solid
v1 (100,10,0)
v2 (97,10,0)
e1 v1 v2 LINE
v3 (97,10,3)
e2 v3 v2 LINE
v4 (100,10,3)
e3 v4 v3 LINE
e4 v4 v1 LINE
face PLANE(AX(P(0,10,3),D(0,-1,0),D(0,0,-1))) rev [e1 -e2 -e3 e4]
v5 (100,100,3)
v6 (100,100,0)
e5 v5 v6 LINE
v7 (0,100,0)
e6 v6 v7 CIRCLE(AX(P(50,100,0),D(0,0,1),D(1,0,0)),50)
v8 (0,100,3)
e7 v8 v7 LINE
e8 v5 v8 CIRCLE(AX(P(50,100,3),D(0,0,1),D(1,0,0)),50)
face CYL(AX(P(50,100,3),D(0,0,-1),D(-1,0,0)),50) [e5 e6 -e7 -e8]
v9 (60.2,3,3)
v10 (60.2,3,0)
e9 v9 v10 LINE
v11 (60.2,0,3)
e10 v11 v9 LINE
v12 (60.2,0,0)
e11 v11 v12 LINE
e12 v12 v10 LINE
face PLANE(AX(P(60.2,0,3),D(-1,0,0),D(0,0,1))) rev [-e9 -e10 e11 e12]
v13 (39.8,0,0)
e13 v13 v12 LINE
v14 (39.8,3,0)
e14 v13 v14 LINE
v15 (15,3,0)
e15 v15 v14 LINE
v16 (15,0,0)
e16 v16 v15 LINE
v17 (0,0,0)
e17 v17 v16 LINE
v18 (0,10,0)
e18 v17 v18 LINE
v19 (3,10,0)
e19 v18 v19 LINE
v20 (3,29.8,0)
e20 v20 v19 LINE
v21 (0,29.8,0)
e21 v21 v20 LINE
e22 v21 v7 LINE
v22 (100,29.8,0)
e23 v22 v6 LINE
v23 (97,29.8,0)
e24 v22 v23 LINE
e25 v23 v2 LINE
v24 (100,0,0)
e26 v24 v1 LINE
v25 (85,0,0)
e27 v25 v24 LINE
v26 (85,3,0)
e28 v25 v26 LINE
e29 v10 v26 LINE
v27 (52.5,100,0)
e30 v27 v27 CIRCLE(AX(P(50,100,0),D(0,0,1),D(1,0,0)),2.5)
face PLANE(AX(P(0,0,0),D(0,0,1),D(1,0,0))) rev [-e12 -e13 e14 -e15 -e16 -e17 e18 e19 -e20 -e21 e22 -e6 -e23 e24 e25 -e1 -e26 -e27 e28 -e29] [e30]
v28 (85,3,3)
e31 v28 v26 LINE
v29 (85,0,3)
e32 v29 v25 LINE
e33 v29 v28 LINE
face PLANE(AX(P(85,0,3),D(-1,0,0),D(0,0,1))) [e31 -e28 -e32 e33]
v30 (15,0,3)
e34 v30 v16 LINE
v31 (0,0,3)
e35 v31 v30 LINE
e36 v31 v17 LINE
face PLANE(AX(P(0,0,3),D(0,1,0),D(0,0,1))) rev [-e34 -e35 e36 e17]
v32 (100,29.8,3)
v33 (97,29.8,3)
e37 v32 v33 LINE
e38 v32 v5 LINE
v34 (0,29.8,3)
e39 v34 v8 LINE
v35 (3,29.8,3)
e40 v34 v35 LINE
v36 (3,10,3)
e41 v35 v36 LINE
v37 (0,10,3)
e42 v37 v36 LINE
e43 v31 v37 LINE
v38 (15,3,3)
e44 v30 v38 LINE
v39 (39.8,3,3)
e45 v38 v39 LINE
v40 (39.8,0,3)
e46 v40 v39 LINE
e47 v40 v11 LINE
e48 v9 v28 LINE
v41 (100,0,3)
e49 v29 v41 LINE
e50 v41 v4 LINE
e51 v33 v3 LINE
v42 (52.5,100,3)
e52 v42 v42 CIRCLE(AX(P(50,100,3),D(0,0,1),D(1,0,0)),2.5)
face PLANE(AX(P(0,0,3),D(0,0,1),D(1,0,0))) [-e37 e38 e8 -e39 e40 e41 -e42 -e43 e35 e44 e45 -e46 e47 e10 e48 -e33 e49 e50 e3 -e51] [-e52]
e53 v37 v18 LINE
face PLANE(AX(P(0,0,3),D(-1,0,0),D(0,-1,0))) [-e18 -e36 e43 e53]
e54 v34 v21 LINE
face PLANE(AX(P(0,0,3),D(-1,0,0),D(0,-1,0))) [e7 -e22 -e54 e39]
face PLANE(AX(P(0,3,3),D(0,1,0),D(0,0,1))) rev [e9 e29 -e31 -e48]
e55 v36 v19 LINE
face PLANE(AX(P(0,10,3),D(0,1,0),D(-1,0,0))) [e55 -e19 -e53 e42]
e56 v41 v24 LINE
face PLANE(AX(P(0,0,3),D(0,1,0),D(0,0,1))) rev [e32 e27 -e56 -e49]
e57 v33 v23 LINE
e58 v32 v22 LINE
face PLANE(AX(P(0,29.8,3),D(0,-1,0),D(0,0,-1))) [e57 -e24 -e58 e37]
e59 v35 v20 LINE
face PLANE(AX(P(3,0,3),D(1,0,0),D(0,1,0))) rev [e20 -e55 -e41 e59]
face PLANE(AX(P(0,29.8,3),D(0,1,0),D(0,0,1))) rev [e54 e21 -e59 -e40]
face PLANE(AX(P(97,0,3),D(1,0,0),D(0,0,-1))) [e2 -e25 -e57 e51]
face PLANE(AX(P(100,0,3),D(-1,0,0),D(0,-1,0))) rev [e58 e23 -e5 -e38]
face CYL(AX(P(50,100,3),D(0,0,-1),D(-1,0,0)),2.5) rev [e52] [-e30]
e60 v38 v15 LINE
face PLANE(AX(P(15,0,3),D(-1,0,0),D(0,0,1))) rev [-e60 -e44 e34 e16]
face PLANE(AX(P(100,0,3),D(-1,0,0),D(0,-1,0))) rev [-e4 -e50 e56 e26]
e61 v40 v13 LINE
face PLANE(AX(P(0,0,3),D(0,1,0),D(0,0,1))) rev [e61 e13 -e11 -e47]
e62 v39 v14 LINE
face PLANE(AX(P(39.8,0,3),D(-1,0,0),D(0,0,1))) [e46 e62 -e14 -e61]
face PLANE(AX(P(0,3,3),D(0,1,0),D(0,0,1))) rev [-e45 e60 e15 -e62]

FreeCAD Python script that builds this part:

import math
import FreeCAD as App
import Part
import Sketcher
from FreeCAD import Vector
Q = App.Units.Quantity

doc = App.newDocument("Part")
body = doc.addObject("PartDesign::Body", "Body")

# Sketch on XY plane
sketch1 = body.newObject("Sketcher::SketchObject", "Sketch")
sketch1.AttachmentSupport = (doc.getObject("XY_Plane"), [""])
sketch1.MapMode = "FlatFace"
sketch1.addGeometry(Part.LineSegment(Vector(0, 10, 0), Vector(0, 0, 0)), False)
sketch1.addGeometry(Part.LineSegment(Vector(0, 0, 0), Vector(15, 0, 0)), False)
sketch1.addGeometry(Part.LineSegment(Vector(15, 0, 0), Vector(15, 3, 0)), False)
sketch1.addGeometry(Part.LineSegment(Vector(15, 3, 0), Vector(39.8, 3, 0)), False)
sketch1.addGeometry(Part.LineSegment(Vector(39.8, 3, 0), Vector(39.8, 0, 0)), False)
sketch1.addGeometry(Part.LineSegment(Vector(39.8, 0, 0), Vector(60.2, 0, 0)), False)
sketch1.addGeometry(Part.LineSegment(Vector(60.2, 0, 0), Vector(60.2, 3, 0)), False)
sketch1.addGeometry(Part.LineSegment(Vector(60.2, 3, 0), Vector(85, 3, 0)), False)
sketch1.addGeometry(Part.LineSegment(Vector(85, 3, 0), Vector(85, 0, 0)), False)
sketch1.addGeometry(Part.LineSegment(Vector(85, 0, 0), Vector(100, 0, 0)), False)
sketch1.addGeometry(Part.LineSegment(Vector(100, 0, 0), Vector(100, 10, 0)), False)
sketch1.addGeometry(Part.LineSegment(Vector(100, 10, 0), Vector(97, 10, 0)), False)
sketch1.addGeometry(Part.LineSegment(Vector(97, 10, 0), Vector(97, 29.8, 0)), False)
sketch1.addGeometry(Part.LineSegment(Vector(97, 29.8, 0), Vector(100, 29.8, 0)), False)
sketch1.addGeometry(Part.LineSegment(Vector(100, 29.8, 0), Vector(100, 100, 0)), False)
sketch1.addGeometry(Part.ArcOfCircle(Part.Circle(Vector(50, 100, 0), Vector(0, 0, 1), 50), math.radians(0), math.radians(180)), False)
sketch1.addGeometry(Part.LineSegment(Vector(0, 100, 0), Vector(0, 29.8, 0)), False)
sketch1.addGeometry(Part.LineSegment(Vector(0, 29.8, 0), Vector(3, 29.8, 0)), False)
sketch1.addGeometry(Part.LineSegment(Vector(3, 29.8, 0), Vector(3, 10, 0)), False)
sketch1.addGeometry(Part.LineSegment(Vector(3, 10, 0), Vector(0, 10, 0)), False)
sketch1.addGeometry(Part.Circle(Vector(50, 100, 0), Vector(0, 0, 1), 2.5), False)
sketch1.addConstraint(Sketcher.Constraint("Coincident", 0, 2, 1, 1))
sketch1.addConstraint(Sketcher.Constraint("Coincident", 1, 2, 2, 1))
sketch1.addConstraint(Sketcher.Constraint("Coincident", 2, 2, 3, 1))
sketch1.addConstraint(Sketcher.Constraint("Coincident", 3, 2, 4, 1))
sketch1.addConstraint(Sketcher.Constraint("Coincident", 4, 2, 5, 1))
sketch1.addConstraint(Sketcher.Constraint("Coincident", 5, 2, 6, 1))
sketch1.addConstraint(Sketcher.Constraint("Coincident", 6, 2, 7, 1))
sketch1.addConstraint(Sketcher.Constraint("Coincident", 7, 2, 8, 1))
sketch1.addConstraint(Sketcher.Constraint("Coincident", 8, 2, 9, 1))
sketch1.addConstraint(Sketcher.Constraint("Coincident", 9, 2, 10, 1))
sketch1.addConstraint(Sketcher.Constraint("Coincident", 10, 2, 11, 1))
sketch1.addConstraint(Sketcher.Constraint("Coincident", 11, 2, 12, 1))
sketch1.addConstraint(Sketcher.Constraint("Coincident", 12, 2, 13, 1))
sketch1.addConstraint(Sketcher.Constraint("Coincident", 13, 2, 14, 1))
sketch1.addConstraint(Sketcher.Constraint("Tangent", 14, 2, 15, 1))
sketch1.addConstraint(Sketcher.Constraint("Tangent", 15, 2, 16, 1))
sketch1.addConstraint(Sketcher.Constraint("Coincident", 16, 2, 17, 1))
sketch1.addConstraint(Sketcher.Constraint("Coincident", 17, 2, 18, 1))
sketch1.addConstraint(Sketcher.Constraint("Coincident", 18, 2, 19, 1))
sketch1.addConstraint(Sketcher.Constraint("Coincident", 19, 2, 0, 1))
sketch1.addConstraint(Sketcher.Constraint("Vertical", 0))
sketch1.addConstraint(Sketcher.Constraint("Horizontal", 1))
sketch1.addConstraint(Sketcher.Constraint("Vertical", 2))
sketch1.addConstraint(Sketcher.Constraint("Horizontal", 3))
sketch1.addConstraint(Sketcher.Constraint("Vertical", 4))
sketch1.addConstraint(Sketcher.Constraint("Horizontal", 5))
sketch1.addConstraint(Sketcher.Constraint("Vertical", 6))
sketch1.addConstraint(Sketcher.Constraint("Horizontal", 7))
sketch1.addConstraint(Sketcher.Constraint("Vertical", 8))
sketch1.addConstraint(Sketcher.Constraint("Horizontal", 9))
sketch1.addConstraint(Sketcher.Constraint("Vertical", 10))
sketch1.addConstraint(Sketcher.Constraint("Horizontal", 11))
sketch1.addConstraint(Sketcher.Constraint("Vertical", 12))
sketch1.addConstraint(Sketcher.Constraint("Horizontal", 13))
sketch1.addConstraint(Sketcher.Constraint("Vertical", 14))
sketch1.addConstraint(Sketcher.Constraint("Vertical", 16))
sketch1.addConstraint(Sketcher.Constraint("Horizontal", 17))
sketch1.addConstraint(Sketcher.Constraint("Vertical", 18))
sketch1.addConstraint(Sketcher.Constraint("Horizontal", 19))
sketch1.addConstraint(Sketcher.Constraint("Coincident", 0, 2, -1, 1))
sketch1.addConstraint(Sketcher.Constraint("Coincident", 20, 3, 15, 3))
sketch1.addConstraint(Sketcher.Constraint("PointOnObject", 4, 2, -1))
sketch1.addConstraint(Sketcher.Constraint("PointOnObject", 8, 2, -1))
sketch1.addConstraint(Sketcher.Constraint("PointOnObject", 15, 2, -2))
sketch1.addConstraint(Sketcher.Constraint("Horizontal", 3, 2, 6, 2))
sketch1.addConstraint(Sketcher.Constraint("Horizontal", 13, 2, 16, 2))
sketch1.addConstraint(Sketcher.Constraint("Horizontal", 11, 2, 18, 2))
sketch1.addConstraint(Sketcher.Constraint("Vertical", 10, 2, 13, 2))
sketch1.addConstraint(Sketcher.Constraint("Equal", 3, 7))
sketch1.addConstraint(Sketcher.Constraint("Equal", 1, 9))
sketch1.addConstraint(Sketcher.Constraint("Equal", 13, 17))
sketch1.addConstraint(Sketcher.Constraint("Equal", 19, 2))
sketch1.addConstraint(Sketcher.Constraint("Diameter", 20, Q("5 mm")))
sketch1.addConstraint(Sketcher.Constraint("Radius", 15, Q("50 mm")))
sketch1.addConstraint(Sketcher.Constraint("DistanceX", 1, 1, 1, 2, Q("15 mm")))
sketch1.addConstraint(Sketcher.Constraint("DistanceX", 11, 2, 11, 1, Q("3 mm")))
sketch1.addConstraint(Sketcher.Constraint("DistanceY", 0, 2, 0, 1, Q("10 mm")))
sketch1.addConstraint(Sketcher.Constraint("DistanceX", 3, 1, 3, 2, Q("24.8 mm")))
sketch1.addConstraint(Sketcher.Constraint("DistanceY", 12, 1, 12, 2, Q("19.8 mm")))
sketch1.addConstraint(Sketcher.Constraint("DistanceY", 14, 1, 14, 2, Q("70.2 mm")))
pad1 = body.newObject("PartDesign::Pad", "Pad")
pad1.Profile = sketch1
pad1.Length = 3

doc.recompute()
